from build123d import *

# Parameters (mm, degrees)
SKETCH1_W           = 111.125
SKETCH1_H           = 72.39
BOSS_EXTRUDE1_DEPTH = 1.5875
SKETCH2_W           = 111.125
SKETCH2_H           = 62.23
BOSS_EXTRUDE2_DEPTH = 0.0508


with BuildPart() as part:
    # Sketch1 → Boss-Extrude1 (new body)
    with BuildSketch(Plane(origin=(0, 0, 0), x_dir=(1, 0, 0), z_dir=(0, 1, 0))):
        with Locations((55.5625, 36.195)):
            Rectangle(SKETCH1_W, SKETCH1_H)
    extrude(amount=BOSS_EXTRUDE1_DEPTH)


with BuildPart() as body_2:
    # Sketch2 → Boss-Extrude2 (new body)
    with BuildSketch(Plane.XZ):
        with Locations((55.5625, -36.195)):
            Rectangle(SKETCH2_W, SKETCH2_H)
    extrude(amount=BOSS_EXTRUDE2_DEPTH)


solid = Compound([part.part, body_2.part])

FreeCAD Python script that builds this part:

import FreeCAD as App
import Part
import Sketcher
Q = App.Units.Quantity


def add_polygon(sketch, points):
    """Adds a closed chain of lines whose ends are joined by coincident constraints."""
    first, n = sketch.GeometryCount, len(points)
    for a, b in zip(points, points[1:] + points[:1]):
        sketch.addGeometry(Part.LineSegment(App.Vector(*a, 0), App.Vector(*b, 0)), False)
    for i in range(n):
        sketch.addConstraint(Sketcher.Constraint("Coincident", first + i, 2, first + (i + 1) % n, 1))

doc = App.newDocument("Part")
params = doc.addObject("Spreadsheet::Sheet", "Params")
for row, (alias, value) in enumerate([
    ("sketch1_height", "2.85 in"),
    ("sketch1_width", "4.375 in"),
    ("pad1_length", "0.0625 in"),
    ("sketch2_height", "2.45 in"),
    ("sketch2_width", "4.375 in"),
    ("pad2_length", "0.002 in"),
], start=1):
    params.set(f"A{row}", alias)
    params.set(f"B{row}", "=" + value)
    params.setAlias(f"B{row}", alias)

body = doc.addObject("PartDesign::Body", "Body")

sketch1 = body.newObject("Sketcher::SketchObject", "Sketch")
sketch1.AttachmentSupport = (doc.getObject("XZ_Plane"), [""])
sketch1.MapMode = "FlatFace"
add_polygon(sketch1, [(0, -72), (0, 0), (111, 0), (111, -72)])
sketch1.addConstraint(Sketcher.Constraint("Vertical", 0))
sketch1.addConstraint(Sketcher.Constraint("Horizontal", 1))
sketch1.addConstraint(Sketcher.Constraint("Vertical", 2))
sketch1.addConstraint(Sketcher.Constraint("Horizontal", 3))
sketch1.addConstraint(Sketcher.Constraint("Coincident", 0, 2, -1, 1))
sketch1.addConstraint(Sketcher.Constraint("DistanceY", 0, 1, 0, 2, Q("2.85 in")))
sketch1.addConstraint(Sketcher.Constraint("DistanceX", 1, 1, 1, 2, Q("4.375 in")))
sketch1.setExpression("Constraints[9]", "Params.sketch1_height")
sketch1.setExpression("Constraints[10]", "Params.sketch1_width")
pad1 = body.newObject("PartDesign::Pad", "Pad")
pad1.Profile = sketch1
pad1.setExpression("Length", "Params.pad1_length")
pad1.Reversed = True
body2 = doc.addObject("PartDesign::Body", "Body001")

sketch2 = body2.newObject("Sketcher::SketchObject", "Sketch001")
sketch2.AttachmentSupport = (doc.getObject("XZ_Plane001"), [""])
sketch2.MapMode = "FlatFace"
add_polygon(sketch2, [(0, -5), (0, -67), (111, -67), (111, -5)])
sketch2.addConstraint(Sketcher.Constraint("Vertical", 0))
sketch2.addConstraint(Sketcher.Constraint("Horizontal", 1))
sketch2.addConstraint(Sketcher.Constraint("Vertical", 2))
sketch2.addConstraint(Sketcher.Constraint("Horizontal", 3))
sketch2.addConstraint(Sketcher.Constraint("PointOnObject", 0, 2, -2))
sketch2.addConstraint(Sketcher.Constraint("DistanceY", 0, 2, 0, 1, Q("2.45 in")))
sketch2.addConstraint(Sketcher.Constraint("DistanceY", 2, 2, -1, 1, Q("0.2 in")))
sketch2.addConstraint(Sketcher.Constraint("DistanceX", 1, 1, 1, 2, Q("4.375 in")))
sketch2.setExpression("Constraints[9]", "Params.sketch2_height")
sketch2.setExpression("Constraints[11]", "Params.sketch2_width")
pad2 = body2.newObject("PartDesign::Pad", "Pad001")
pad2.Profile = sketch2
pad2.setExpression("Length", "Params.pad2_length")

doc.recompute()
